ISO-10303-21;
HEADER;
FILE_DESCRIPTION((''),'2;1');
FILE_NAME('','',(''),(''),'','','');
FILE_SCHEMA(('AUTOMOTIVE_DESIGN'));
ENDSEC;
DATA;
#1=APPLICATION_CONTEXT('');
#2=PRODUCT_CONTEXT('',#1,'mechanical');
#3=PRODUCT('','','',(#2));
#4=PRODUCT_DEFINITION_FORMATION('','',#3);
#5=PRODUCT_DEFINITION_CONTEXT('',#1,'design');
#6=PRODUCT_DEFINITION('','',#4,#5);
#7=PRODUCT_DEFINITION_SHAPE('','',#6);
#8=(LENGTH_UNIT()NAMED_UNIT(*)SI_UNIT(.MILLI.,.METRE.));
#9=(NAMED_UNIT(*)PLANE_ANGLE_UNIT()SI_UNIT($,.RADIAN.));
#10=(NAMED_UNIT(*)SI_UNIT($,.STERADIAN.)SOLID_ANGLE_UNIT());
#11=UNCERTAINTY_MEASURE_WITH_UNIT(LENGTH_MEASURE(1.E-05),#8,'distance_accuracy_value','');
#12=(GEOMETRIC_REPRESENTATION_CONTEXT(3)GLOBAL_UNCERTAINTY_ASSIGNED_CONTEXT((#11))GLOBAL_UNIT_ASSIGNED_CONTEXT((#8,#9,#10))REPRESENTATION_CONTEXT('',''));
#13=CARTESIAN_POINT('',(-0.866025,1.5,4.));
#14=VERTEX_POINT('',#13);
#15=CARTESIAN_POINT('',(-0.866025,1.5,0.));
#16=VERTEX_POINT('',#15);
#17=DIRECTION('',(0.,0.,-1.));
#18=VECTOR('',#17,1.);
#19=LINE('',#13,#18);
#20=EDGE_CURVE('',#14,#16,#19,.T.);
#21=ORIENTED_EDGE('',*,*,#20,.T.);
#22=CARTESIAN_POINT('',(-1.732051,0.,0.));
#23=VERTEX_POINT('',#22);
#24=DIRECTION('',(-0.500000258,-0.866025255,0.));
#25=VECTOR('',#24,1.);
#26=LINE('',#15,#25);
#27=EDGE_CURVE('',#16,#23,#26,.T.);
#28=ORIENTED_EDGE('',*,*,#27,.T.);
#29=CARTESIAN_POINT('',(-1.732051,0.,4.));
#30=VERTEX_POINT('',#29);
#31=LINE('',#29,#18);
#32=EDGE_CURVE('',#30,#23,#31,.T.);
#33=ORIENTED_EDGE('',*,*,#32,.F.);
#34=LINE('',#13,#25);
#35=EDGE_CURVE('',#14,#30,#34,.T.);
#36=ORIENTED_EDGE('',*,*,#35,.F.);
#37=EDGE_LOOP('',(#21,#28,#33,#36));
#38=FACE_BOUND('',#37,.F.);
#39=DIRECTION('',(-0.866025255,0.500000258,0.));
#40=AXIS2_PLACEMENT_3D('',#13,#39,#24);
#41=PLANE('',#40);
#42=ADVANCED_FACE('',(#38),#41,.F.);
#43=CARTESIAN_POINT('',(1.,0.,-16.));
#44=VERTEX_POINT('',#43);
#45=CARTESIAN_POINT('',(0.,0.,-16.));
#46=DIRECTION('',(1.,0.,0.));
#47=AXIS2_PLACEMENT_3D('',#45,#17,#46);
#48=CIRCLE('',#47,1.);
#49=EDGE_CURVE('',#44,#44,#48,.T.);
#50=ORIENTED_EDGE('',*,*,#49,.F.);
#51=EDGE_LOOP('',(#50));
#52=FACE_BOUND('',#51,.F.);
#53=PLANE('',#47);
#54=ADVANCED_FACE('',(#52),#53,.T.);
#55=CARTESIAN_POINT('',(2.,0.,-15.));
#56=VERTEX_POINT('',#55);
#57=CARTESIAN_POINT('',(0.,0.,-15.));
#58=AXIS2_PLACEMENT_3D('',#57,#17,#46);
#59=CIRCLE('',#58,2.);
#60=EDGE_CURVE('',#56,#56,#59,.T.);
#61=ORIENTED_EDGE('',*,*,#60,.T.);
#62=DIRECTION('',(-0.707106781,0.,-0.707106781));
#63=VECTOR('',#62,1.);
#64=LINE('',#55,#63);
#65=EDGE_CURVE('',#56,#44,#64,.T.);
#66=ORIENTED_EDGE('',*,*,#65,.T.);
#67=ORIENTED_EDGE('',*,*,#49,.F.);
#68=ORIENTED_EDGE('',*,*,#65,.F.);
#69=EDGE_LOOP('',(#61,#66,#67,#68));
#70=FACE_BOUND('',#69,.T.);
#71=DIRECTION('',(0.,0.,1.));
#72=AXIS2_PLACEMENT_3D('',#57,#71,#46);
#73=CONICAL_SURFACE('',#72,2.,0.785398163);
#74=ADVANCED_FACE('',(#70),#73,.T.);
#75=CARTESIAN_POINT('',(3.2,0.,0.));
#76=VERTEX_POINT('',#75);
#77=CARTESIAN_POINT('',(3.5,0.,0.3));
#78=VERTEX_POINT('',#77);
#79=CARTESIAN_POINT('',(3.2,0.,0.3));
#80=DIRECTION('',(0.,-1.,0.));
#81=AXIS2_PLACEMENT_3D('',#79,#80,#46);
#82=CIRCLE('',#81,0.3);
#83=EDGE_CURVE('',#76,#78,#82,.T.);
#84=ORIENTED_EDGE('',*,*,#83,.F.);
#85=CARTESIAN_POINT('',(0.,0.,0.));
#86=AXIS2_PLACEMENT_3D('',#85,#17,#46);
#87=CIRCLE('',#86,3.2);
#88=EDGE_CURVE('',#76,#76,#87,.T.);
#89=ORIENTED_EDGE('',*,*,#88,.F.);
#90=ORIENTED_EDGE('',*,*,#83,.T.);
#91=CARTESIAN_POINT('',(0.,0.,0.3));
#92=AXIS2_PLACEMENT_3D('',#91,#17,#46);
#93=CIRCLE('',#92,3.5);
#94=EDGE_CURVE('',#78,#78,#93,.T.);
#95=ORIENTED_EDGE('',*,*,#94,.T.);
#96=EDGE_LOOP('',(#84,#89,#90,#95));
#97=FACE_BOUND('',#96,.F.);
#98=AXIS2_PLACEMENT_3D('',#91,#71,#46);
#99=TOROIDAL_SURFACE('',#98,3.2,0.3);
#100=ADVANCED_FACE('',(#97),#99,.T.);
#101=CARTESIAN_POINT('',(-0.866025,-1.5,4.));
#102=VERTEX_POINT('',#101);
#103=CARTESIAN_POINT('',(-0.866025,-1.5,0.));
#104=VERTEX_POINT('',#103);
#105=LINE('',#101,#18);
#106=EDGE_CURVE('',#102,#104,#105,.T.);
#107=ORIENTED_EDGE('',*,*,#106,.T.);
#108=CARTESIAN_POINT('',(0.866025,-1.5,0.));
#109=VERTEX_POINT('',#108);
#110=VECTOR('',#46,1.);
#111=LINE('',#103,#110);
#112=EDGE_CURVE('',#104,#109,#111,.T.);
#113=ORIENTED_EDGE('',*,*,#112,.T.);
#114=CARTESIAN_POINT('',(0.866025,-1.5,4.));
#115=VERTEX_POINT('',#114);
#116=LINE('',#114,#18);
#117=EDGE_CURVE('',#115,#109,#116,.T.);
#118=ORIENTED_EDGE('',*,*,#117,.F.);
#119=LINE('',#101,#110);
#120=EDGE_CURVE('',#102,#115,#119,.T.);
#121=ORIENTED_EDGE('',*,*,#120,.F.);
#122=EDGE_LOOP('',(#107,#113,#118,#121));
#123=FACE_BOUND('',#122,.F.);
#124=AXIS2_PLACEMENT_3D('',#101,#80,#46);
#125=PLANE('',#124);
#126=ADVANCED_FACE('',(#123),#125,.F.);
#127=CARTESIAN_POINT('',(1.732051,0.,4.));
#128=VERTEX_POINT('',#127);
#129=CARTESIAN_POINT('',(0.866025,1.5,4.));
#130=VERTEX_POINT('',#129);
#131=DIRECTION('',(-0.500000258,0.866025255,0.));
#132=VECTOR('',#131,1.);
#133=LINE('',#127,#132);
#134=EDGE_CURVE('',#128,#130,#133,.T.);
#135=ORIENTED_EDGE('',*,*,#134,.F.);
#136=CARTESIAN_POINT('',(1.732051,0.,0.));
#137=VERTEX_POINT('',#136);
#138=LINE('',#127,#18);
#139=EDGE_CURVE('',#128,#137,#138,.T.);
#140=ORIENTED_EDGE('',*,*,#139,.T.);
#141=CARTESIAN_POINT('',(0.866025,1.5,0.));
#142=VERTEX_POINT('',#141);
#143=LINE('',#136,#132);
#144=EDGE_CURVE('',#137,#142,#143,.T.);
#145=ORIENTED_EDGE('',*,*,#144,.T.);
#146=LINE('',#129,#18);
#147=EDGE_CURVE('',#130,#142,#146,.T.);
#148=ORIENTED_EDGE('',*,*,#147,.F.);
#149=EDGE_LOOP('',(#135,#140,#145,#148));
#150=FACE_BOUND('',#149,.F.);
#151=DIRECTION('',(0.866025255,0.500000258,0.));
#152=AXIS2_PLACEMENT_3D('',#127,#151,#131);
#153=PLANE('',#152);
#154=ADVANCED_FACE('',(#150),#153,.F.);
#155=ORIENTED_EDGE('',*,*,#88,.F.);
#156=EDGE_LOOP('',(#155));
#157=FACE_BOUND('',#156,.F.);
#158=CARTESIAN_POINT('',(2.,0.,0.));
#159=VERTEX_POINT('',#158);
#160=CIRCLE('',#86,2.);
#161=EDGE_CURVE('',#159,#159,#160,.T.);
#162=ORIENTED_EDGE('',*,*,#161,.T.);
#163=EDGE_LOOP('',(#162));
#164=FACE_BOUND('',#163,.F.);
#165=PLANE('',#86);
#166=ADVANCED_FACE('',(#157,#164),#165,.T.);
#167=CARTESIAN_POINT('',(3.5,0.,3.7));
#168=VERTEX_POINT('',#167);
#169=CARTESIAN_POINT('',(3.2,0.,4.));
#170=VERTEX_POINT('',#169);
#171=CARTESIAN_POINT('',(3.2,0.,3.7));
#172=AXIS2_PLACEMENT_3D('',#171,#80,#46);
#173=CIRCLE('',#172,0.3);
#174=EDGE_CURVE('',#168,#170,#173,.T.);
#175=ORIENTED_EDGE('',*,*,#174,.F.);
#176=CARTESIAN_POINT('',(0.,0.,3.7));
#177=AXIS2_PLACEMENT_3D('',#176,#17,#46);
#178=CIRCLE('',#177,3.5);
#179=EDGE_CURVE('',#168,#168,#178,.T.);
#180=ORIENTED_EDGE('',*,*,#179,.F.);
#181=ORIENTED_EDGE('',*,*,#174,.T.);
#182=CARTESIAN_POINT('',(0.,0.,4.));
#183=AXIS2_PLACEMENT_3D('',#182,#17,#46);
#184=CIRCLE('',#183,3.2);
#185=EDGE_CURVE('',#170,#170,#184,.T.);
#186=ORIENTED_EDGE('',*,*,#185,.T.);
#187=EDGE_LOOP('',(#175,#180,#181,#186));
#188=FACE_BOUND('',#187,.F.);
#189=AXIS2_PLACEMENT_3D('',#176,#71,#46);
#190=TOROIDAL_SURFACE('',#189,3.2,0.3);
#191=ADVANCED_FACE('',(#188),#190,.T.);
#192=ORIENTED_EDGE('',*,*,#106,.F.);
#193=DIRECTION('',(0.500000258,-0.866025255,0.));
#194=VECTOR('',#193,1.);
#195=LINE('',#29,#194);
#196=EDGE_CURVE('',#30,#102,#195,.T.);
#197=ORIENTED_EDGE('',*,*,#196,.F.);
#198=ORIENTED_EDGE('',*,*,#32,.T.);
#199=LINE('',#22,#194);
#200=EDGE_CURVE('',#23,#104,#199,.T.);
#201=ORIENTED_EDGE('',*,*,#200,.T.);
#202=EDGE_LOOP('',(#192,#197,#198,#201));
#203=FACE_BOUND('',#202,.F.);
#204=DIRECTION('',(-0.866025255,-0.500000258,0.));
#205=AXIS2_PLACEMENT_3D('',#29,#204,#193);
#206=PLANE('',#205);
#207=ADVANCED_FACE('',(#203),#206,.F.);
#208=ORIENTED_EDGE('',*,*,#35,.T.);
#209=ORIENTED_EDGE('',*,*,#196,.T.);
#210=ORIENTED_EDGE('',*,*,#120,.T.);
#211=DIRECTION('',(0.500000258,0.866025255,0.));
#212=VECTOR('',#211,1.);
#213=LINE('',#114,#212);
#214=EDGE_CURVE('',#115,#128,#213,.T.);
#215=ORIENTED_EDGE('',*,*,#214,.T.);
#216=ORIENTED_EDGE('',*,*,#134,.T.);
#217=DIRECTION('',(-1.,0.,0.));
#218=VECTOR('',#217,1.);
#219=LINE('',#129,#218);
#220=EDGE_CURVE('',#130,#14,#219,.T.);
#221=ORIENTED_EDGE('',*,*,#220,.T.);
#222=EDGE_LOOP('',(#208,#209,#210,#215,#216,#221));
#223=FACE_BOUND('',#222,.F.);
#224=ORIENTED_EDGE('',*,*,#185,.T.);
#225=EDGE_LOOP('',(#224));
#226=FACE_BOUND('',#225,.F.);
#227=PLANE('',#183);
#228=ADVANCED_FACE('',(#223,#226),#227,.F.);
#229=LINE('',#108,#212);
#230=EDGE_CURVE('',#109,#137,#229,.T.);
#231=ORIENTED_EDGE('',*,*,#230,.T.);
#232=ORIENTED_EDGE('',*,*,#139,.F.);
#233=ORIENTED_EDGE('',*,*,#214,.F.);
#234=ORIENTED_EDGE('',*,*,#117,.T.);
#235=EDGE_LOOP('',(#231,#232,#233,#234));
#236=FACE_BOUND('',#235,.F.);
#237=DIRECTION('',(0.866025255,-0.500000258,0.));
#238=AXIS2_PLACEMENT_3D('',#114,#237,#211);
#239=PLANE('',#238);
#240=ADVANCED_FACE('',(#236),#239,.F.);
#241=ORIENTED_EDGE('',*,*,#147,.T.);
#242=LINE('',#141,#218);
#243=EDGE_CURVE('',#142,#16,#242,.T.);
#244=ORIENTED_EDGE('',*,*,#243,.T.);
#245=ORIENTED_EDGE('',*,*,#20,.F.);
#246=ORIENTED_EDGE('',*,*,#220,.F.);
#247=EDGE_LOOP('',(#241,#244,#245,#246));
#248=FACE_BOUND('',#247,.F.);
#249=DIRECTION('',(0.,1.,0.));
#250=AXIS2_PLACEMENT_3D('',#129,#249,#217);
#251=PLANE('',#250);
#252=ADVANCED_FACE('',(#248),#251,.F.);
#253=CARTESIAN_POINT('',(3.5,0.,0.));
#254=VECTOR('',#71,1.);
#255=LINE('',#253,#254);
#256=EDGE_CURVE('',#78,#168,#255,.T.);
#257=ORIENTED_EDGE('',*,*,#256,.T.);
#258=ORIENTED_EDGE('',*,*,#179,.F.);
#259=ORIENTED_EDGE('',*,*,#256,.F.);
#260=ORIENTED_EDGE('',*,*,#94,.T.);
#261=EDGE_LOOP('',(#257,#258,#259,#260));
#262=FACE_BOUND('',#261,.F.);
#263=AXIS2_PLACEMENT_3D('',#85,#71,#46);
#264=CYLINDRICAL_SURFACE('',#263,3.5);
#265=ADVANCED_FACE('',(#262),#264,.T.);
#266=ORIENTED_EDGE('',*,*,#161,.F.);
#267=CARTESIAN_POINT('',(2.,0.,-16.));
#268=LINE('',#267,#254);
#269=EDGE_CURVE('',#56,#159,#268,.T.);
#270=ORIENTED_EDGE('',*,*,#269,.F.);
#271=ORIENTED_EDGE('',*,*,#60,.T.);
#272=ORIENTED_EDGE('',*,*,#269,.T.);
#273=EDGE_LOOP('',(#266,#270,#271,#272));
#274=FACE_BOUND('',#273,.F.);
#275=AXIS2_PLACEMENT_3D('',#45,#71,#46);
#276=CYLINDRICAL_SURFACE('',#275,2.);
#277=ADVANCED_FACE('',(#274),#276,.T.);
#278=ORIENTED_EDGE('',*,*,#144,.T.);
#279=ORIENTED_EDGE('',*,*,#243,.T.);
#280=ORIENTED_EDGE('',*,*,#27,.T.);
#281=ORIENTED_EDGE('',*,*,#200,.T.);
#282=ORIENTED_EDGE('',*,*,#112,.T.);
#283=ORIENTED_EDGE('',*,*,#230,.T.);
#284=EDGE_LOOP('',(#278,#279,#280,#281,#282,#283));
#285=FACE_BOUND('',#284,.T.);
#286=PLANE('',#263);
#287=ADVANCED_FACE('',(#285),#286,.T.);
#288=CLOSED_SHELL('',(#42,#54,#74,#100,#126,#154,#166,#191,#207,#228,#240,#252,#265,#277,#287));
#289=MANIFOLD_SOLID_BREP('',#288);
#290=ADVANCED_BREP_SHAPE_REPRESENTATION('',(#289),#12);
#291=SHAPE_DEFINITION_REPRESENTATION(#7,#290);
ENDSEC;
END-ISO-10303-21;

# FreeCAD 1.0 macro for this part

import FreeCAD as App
import Part
import Sketcher
from FreeCAD import Vector
Q = App.Units.Quantity


def edges_at(feature, points):
    """Names of the edges that pass closest to the given points."""
    edges = feature.Shape.Edges
    near = lambda p: min(range(len(edges)), key=lambda i: edges[i].distToShape(Part.Vertex(*p))[0])
    return sorted({f"Edge{near(p) + 1}" for p in points})

doc = App.newDocument("Part")
body = doc.addObject("PartDesign::Body", "Body")

sketch1 = doc.addObject("Sketcher::SketchObject", "Sketch")
body.addObject(sketch1)
sketch1.AttachmentSupport = (doc.XZ_Plane, [""])
sketch1.MapMode = "FlatFace"
sketch1.addGeometry([
    Part.LineSegment(Vector(3.5, 4, 0), Vector(0, 4, 0)),
    Part.LineSegment(Vector(0, 4, 0), Vector(0, -16, 0)),
    Part.LineSegment(Vector(0, -16, 0), Vector(2, -16, 0)),
    Part.LineSegment(Vector(2, -16, 0), Vector(2, 0, 0)),
    Part.LineSegment(Vector(2, 0, 0), Vector(3.5, 0, 0)),
    Part.LineSegment(Vector(3.5, 0, 0), Vector(3.5, 4, 0)),
], False)
sketch1.addConstraint([
    Sketcher.Constraint("Coincident", 0, 2, 1, 1),
    Sketcher.Constraint("Coincident", 1, 2, 2, 1),
    Sketcher.Constraint("Coincident", 2, 2, 3, 1),
    Sketcher.Constraint("Coincident", 3, 2, 4, 1),
    Sketcher.Constraint("Coincident", 4, 2, 5, 1),
    Sketcher.Constraint("Coincident", 5, 2, 0, 1),
    Sketcher.Constraint("Horizontal", 0),
    Sketcher.Constraint("Vertical", 1),
    Sketcher.Constraint("Horizontal", 2),
    Sketcher.Constraint("Vertical", 3),
    Sketcher.Constraint("Horizontal", 4),
    Sketcher.Constraint("Vertical", 5),
    Sketcher.Constraint("PointOnObject", 0, 2, -2),
    Sketcher.Constraint("PointOnObject", 3, 2, -1),
    Sketcher.Constraint("DistanceX", 2, 1, 2, 2, Q("2 mm")),
    Sketcher.Constraint("DistanceY", 1, 2, 1, 1, Q("20 mm")),
    Sketcher.Constraint("DistanceY", 3, 1, 3, 2, Q("16 mm")),
    Sketcher.Constraint("DistanceX", 0, 2, 0, 1, Q("3.5 mm")),
])
revolution = doc.addObject("PartDesign::Revolution", "Revolution")
body.addObject(revolution)
revolution.Profile = sketch1
revolution.ReferenceAxis = (sketch1, ["V_Axis"])
revolution.Angle = 360

sketch2 = doc.addObject("Sketcher::SketchObject", "Sketch001")
body.addObject(sketch2)
sketch2.AttachmentSupport = (doc.XY_Plane, [""])
sketch2.MapMode = "FlatFace"
sketch2.AttachmentOffset = App.Placement(Vector(0, 0, 4), App.Rotation())
sketch2.addGeometry([
    Part.LineSegment(Vector(0.9, 1.5, 0), Vector(-0.9, 1.5, 0)),
    Part.LineSegment(Vector(-0.9, 1.5, 0), Vector(-1.7, 0, 0)),
    Part.LineSegment(Vector(-1.7, 0, 0), Vector(-0.9, -1.5, 0)),
    Part.LineSegment(Vector(-0.9, -1.5, 0), Vector(0.9, -1.5, 0)),
    Part.LineSegment(Vector(0.9, -1.5, 0), Vector(1.7, 0, 0)),
    Part.LineSegment(Vector(1.7, 0, 0), Vector(0.9, 1.5, 0)),
], False)
sketch2.addConstraint([
    Sketcher.Constraint("Coincident", 0, 2, 1, 1),
    Sketcher.Constraint("Coincident", 1, 2, 2, 1),
    Sketcher.Constraint("Coincident", 2, 2, 3, 1),
    Sketcher.Constraint("Coincident", 3, 2, 4, 1),
    Sketcher.Constraint("Coincident", 4, 2, 5, 1),
    Sketcher.Constraint("Coincident", 5, 2, 0, 1),
    Sketcher.Constraint("Horizontal", 0),
    Sketcher.Constraint("Horizontal", 3),
    Sketcher.Constraint("Symmetric", 0, 2, 3, 2, -1, 1),
    Sketcher.Constraint("Symmetric", 1, 2, 4, 2, -1, 1),
    Sketcher.Constraint("PointOnObject", 1, 2, -1),
    Sketcher.Constraint("Parallel", 2, 5),
    Sketcher.Constraint("Vertical", 0, 2, 2, 2),
    Sketcher.Constraint("Angle", 1, Q("-120.000017 deg")),
    Sketcher.Constraint("DistanceY", 2, 2, 0, 2, Q("3 mm")),
    Sketcher.Constraint("DistanceX", 0, 2, 0, 1, Q("1.73205 mm")),
])
pocket1 = doc.addObject("PartDesign::Pocket", "Pocket")
body.addObject(pocket1)
pocket1.Profile = sketch2
pocket1.Length = 4
doc.recompute()

chamfer = doc.addObject("PartDesign::Chamfer", "Chamfer")
body.addObject(chamfer)
chamfer.Base = (pocket1, edges_at(pocket1, [(-2, 0, -16)]))
chamfer.Size = 1
doc.recompute()

fillet = doc.addObject("PartDesign::Fillet", "Fillet")
body.addObject(fillet)
fillet.Base = (chamfer, edges_at(chamfer, [(-3.5, 0, 0), (-3.5, 0, 4)]))
fillet.Radius = 0.3

doc.recompute()
